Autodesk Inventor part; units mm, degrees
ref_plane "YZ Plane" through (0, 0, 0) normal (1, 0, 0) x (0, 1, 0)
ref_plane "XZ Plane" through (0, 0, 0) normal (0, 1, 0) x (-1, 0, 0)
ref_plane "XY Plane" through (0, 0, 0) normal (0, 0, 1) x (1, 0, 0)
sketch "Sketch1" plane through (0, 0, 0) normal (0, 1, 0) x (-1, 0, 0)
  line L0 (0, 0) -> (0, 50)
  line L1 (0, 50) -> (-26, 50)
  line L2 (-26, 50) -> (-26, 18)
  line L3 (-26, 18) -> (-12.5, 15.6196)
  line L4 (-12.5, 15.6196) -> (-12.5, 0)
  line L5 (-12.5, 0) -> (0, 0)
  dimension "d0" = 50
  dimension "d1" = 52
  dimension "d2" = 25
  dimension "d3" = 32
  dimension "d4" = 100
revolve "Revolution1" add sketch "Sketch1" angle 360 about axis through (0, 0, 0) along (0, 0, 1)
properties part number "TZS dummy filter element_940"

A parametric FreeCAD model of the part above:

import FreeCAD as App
import Part
import Sketcher
from FreeCAD import Vector
Q = App.Units.Quantity


def add_polygon(sketch, points):
    """Adds a closed chain of lines whose ends are joined by coincident constraints."""
    first, n = sketch.GeometryCount, len(points)
    for a, b in zip(points, points[1:] + points[:1]):
        sketch.addGeometry(Part.LineSegment(App.Vector(*a, 0), App.Vector(*b, 0)), False)
    for i in range(n):
        sketch.addConstraint(Sketcher.Constraint("Coincident", first + i, 2, first + (i + 1) % n, 1))

doc = App.newDocument("Part")
params = doc.addObject("Spreadsheet::Sheet", "Params")
for row, (alias, value) in enumerate([
    ("sketch1_height", "50 mm"),
    ("sketch1_height2", "32 mm"),
    ("sketch1_width", "26 mm"),
    ("sketch1_width2", "12.5 mm"),
    ("revolution_angle", "360 deg"),
], start=1):
    params.set(f"A{row}", alias)
    params.set(f"B{row}", "=" + value)
    params.setAlias(f"B{row}", alias)

body = doc.addObject("PartDesign::Body", "Body")

sketch1 = body.newObject("Sketcher::SketchObject", "Sketch")
sketch1.AttachmentSupport = (doc.getObject("XZ_Plane"), [""])
sketch1.MapMode = "FlatFace"
add_polygon(sketch1, [(12, 0), (0, 0), (0, 50), (26, 50), (26, 18), (12, 16)])
sketch1.addConstraint([
    Sketcher.Constraint("Horizontal", 0),
    Sketcher.Constraint("Vertical", 1),
    Sketcher.Constraint("Horizontal", 2),
    Sketcher.Constraint("Vertical", 3),
    Sketcher.Constraint("Vertical", 5),
    Sketcher.Constraint("Coincident", 0, 2, -1, 1),
    Sketcher.Constraint("DistanceY", 1, 1, 1, 2, Q("50 mm")),
    Sketcher.Constraint("DistanceY", 3, 2, 3, 1, Q("32 mm")),
    Sketcher.Constraint("DistanceX", 2, 1, 2, 2, Q("26 mm")),
    Sketcher.Constraint("Angle", 4, Q("-170 deg")),
    Sketcher.Constraint("DistanceX", 0, 2, 0, 1, Q("12.5 mm")),
])
sketch1.setExpression("Constraints[12]", "Params.sketch1_height")
sketch1.setExpression("Constraints[13]", "Params.sketch1_height2")
sketch1.setExpression("Constraints[14]", "Params.sketch1_width")
sketch1.setExpression("Constraints[16]", "Params.sketch1_width2")
revolution = body.newObject("PartDesign::Revolution", "Revolution")
revolution.Profile = sketch1
revolution.ReferenceAxis = (sketch1, ["V_Axis"])
revolution.setExpression("Angle", "Params.revolution_angle")

doc.recompute()
